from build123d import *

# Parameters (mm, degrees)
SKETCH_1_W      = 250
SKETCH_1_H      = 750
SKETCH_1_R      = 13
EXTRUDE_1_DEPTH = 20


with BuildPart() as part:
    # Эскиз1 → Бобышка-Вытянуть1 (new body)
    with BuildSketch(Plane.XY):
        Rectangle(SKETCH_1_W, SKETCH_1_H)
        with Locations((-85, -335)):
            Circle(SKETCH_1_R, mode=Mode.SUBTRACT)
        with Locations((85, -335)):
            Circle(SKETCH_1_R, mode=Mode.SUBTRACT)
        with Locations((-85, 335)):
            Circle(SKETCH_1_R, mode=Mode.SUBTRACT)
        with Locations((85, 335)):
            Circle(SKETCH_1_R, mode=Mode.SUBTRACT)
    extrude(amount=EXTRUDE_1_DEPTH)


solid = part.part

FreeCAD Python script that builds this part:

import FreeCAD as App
import Part
import Sketcher

doc = App.newDocument("Part")
body = doc.addObject("PartDesign::Body", "Body")

# Sketch on XY plane
sketch1 = body.newObject("Sketcher::SketchObject", "Sketch")
sketch1.AttachmentSupport = (doc.getObject("XY_Plane"), [""])
sketch1.MapMode = "FlatFace"
sketch1.addGeometry(Part.LineSegment(App.Vector(-125, 375, 0), App.Vector(-125, -375, 0)), False)
sketch1.addGeometry(Part.LineSegment(App.Vector(-125, -375, 0), App.Vector(125, -375, 0)), False)
sketch1.addGeometry(Part.LineSegment(App.Vector(125, -375, 0), App.Vector(125, 375, 0)), False)
sketch1.addGeometry(Part.LineSegment(App.Vector(125, 375, 0), App.Vector(-125, 375, 0)), False)
sketch1.addGeometry(Part.Circle(App.Vector(-85, -335, 0), App.Vector(0, 0, 1), 13), False)
sketch1.addGeometry(Part.Circle(App.Vector(85, -335, 0), App.Vector(0, 0, 1), 13), False)
sketch1.addGeometry(Part.Circle(App.Vector(-85, 335, 0), App.Vector(0, 0, 1), 13), False)
sketch1.addGeometry(Part.Circle(App.Vector(85, 335, 0), App.Vector(0, 0, 1), 13), False)
sketch1.addConstraint(Sketcher.Constraint("Coincident", 0, 2, 1, 1))
sketch1.addConstraint(Sketcher.Constraint("Coincident", 1, 2, 2, 1))
sketch1.addConstraint(Sketcher.Constraint("Coincident", 2, 2, 3, 1))
sketch1.addConstraint(Sketcher.Constraint("Coincident", 3, 2, 0, 1))
sketch1.addConstraint(Sketcher.Constraint("Vertical", 0))
sketch1.addConstraint(Sketcher.Constraint("Horizontal", 1))
sketch1.addConstraint(Sketcher.Constraint("Vertical", 2))
sketch1.addConstraint(Sketcher.Constraint("Horizontal", 3))
sketch1.addConstraint(Sketcher.Constraint("Equal", 4, 5))
sketch1.addConstraint(Sketcher.Constraint("Equal", 5, 6))
sketch1.addConstraint(Sketcher.Constraint("Equal", 6, 7))
sketch1.addConstraint(Sketcher.Constraint("Symmetric", 5, 3, 6, 3, -1, 1))
sketch1.addConstraint(Sketcher.Constraint("Symmetric", 4, 3, 7, 3, -1, 1))
sketch1.addConstraint(Sketcher.Constraint("Symmetric", 0, 2, 2, 2, -1, 1))
sketch1.addConstraint(Sketcher.Constraint("Symmetric", 4, 3, 5, 3, -2))
sketch1.addConstraint(Sketcher.Constraint("Diameter", 4, 26.0))
sketch1.addConstraint(Sketcher.Constraint("DistanceX", 1, 1, 1, 2, 250.0))
sketch1.addConstraint(Sketcher.Constraint("DistanceY", 0, 2, 0, 1, 750.0))
sketch1.addConstraint(Sketcher.Constraint("DistanceX", 4, 3, -1, 1, 85.0))
sketch1.addConstraint(Sketcher.Constraint("DistanceY", 4, 3, -1, 1, 335.0))
pad1 = body.newObject("PartDesign::Pad", "Pad")
pad1.Profile = sketch1
pad1.Length = 20

doc.recompute()
